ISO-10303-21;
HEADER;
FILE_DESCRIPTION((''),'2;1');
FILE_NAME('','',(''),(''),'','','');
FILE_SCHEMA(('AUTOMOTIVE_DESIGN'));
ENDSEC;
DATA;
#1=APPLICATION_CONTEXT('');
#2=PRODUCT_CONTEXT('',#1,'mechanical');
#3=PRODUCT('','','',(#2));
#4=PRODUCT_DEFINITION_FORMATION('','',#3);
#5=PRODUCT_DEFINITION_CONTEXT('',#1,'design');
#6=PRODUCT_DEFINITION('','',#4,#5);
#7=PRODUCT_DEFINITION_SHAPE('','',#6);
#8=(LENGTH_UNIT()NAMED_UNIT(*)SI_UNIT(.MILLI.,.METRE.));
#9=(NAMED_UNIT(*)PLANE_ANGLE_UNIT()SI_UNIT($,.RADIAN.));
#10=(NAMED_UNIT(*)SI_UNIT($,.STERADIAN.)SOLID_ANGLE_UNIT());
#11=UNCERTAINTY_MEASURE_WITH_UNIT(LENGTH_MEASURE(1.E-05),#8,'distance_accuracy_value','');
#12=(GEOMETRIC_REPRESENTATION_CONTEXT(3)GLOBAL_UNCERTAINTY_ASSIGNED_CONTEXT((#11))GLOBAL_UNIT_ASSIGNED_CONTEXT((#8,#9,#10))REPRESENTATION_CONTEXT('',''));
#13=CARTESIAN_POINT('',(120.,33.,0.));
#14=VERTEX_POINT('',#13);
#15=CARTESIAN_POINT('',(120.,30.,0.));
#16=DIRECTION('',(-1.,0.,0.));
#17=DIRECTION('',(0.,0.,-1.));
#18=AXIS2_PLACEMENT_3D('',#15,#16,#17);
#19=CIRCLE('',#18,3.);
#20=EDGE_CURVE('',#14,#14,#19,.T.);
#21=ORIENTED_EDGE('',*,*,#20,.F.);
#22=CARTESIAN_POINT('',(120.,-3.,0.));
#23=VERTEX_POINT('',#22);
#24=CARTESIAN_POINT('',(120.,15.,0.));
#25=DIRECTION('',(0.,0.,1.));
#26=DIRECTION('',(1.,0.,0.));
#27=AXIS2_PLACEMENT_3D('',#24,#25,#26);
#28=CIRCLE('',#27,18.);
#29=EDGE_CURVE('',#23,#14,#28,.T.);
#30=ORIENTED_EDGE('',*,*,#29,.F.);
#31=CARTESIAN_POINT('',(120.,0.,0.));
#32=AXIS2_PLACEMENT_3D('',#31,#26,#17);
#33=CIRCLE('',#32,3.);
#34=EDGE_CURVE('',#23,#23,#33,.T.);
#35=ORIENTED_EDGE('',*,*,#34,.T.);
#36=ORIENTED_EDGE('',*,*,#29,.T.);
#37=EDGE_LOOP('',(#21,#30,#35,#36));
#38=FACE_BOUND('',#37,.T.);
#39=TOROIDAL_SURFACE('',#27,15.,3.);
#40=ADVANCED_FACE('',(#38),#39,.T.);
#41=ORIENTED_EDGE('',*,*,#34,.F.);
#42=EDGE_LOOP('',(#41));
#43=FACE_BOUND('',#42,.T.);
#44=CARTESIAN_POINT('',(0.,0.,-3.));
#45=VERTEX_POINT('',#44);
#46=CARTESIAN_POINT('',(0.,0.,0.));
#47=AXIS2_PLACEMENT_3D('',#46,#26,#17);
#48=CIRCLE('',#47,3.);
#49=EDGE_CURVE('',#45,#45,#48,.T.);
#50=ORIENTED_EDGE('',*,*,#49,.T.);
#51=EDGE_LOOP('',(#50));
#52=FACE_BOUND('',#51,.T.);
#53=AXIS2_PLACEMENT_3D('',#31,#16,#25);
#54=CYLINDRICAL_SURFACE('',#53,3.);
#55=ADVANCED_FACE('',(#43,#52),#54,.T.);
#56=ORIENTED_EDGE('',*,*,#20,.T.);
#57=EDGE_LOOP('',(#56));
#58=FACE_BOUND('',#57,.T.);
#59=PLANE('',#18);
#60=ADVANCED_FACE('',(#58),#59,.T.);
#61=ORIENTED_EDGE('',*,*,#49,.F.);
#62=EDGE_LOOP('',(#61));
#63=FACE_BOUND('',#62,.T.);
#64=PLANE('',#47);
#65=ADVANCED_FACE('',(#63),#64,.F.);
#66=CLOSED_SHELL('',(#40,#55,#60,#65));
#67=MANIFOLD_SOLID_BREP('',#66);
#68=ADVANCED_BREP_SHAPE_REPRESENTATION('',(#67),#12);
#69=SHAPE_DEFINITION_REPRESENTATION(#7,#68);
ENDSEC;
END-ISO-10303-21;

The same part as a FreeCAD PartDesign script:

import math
import FreeCAD as App
import Part
import Sketcher

V = App.Vector

doc = App.newDocument("Part")
body = doc.addObject("PartDesign::Body", "Body")

# Sketch on YZ plane
sketch1 = body.newObject("Sketcher::SketchObject", "Sketch")
sketch1.AttachmentSupport = (doc.getObject("YZ_Plane"), [""])
sketch1.MapMode = "FlatFace"
sketch1.addGeometry(Part.Circle(V(0, 0, 0), V(0, 0, 1), 3), False)
sketch1.addConstraint([
    Sketcher.Constraint("Coincident", 0, 3, -1, 1),
    Sketcher.Constraint("Diameter", 0, 6.0),
])

# Sketch on XY plane
sketch2 = body.newObject("Sketcher::SketchObject", "Sketch001")
sketch2.AttachmentSupport = (doc.getObject("XY_Plane"), [""])
sketch2.MapMode = "FlatFace"
sketch2.addGeometry([
    Part.LineSegment(V(0, 0, 0), V(120, 0, 0)),
    Part.ArcOfCircle(Part.Circle(V(120, 15, 0), V(0, 0, 1), 15), math.radians(-90), math.radians(90)),
], False)
sketch2.addConstraint([
    Sketcher.Constraint("Tangent", 0, 2, 1, 1),
    Sketcher.Constraint("Horizontal", 0),
    Sketcher.Constraint("Coincident", 0, 1, -1, 1),
    Sketcher.Constraint("Vertical", 0, 2, 1, 2),
    Sketcher.Constraint("Radius", 1, 15.0),
    Sketcher.Constraint("DistanceX", 0, 1, 0, 2, 120.0),
])
doc.recompute()

additivepipe = body.newObject("PartDesign::AdditivePipe", "AdditivePipe")
additivepipe.Profile = sketch1
additivepipe.Spine = (sketch2, ["Edge1", "Edge2"])

doc.recompute()
